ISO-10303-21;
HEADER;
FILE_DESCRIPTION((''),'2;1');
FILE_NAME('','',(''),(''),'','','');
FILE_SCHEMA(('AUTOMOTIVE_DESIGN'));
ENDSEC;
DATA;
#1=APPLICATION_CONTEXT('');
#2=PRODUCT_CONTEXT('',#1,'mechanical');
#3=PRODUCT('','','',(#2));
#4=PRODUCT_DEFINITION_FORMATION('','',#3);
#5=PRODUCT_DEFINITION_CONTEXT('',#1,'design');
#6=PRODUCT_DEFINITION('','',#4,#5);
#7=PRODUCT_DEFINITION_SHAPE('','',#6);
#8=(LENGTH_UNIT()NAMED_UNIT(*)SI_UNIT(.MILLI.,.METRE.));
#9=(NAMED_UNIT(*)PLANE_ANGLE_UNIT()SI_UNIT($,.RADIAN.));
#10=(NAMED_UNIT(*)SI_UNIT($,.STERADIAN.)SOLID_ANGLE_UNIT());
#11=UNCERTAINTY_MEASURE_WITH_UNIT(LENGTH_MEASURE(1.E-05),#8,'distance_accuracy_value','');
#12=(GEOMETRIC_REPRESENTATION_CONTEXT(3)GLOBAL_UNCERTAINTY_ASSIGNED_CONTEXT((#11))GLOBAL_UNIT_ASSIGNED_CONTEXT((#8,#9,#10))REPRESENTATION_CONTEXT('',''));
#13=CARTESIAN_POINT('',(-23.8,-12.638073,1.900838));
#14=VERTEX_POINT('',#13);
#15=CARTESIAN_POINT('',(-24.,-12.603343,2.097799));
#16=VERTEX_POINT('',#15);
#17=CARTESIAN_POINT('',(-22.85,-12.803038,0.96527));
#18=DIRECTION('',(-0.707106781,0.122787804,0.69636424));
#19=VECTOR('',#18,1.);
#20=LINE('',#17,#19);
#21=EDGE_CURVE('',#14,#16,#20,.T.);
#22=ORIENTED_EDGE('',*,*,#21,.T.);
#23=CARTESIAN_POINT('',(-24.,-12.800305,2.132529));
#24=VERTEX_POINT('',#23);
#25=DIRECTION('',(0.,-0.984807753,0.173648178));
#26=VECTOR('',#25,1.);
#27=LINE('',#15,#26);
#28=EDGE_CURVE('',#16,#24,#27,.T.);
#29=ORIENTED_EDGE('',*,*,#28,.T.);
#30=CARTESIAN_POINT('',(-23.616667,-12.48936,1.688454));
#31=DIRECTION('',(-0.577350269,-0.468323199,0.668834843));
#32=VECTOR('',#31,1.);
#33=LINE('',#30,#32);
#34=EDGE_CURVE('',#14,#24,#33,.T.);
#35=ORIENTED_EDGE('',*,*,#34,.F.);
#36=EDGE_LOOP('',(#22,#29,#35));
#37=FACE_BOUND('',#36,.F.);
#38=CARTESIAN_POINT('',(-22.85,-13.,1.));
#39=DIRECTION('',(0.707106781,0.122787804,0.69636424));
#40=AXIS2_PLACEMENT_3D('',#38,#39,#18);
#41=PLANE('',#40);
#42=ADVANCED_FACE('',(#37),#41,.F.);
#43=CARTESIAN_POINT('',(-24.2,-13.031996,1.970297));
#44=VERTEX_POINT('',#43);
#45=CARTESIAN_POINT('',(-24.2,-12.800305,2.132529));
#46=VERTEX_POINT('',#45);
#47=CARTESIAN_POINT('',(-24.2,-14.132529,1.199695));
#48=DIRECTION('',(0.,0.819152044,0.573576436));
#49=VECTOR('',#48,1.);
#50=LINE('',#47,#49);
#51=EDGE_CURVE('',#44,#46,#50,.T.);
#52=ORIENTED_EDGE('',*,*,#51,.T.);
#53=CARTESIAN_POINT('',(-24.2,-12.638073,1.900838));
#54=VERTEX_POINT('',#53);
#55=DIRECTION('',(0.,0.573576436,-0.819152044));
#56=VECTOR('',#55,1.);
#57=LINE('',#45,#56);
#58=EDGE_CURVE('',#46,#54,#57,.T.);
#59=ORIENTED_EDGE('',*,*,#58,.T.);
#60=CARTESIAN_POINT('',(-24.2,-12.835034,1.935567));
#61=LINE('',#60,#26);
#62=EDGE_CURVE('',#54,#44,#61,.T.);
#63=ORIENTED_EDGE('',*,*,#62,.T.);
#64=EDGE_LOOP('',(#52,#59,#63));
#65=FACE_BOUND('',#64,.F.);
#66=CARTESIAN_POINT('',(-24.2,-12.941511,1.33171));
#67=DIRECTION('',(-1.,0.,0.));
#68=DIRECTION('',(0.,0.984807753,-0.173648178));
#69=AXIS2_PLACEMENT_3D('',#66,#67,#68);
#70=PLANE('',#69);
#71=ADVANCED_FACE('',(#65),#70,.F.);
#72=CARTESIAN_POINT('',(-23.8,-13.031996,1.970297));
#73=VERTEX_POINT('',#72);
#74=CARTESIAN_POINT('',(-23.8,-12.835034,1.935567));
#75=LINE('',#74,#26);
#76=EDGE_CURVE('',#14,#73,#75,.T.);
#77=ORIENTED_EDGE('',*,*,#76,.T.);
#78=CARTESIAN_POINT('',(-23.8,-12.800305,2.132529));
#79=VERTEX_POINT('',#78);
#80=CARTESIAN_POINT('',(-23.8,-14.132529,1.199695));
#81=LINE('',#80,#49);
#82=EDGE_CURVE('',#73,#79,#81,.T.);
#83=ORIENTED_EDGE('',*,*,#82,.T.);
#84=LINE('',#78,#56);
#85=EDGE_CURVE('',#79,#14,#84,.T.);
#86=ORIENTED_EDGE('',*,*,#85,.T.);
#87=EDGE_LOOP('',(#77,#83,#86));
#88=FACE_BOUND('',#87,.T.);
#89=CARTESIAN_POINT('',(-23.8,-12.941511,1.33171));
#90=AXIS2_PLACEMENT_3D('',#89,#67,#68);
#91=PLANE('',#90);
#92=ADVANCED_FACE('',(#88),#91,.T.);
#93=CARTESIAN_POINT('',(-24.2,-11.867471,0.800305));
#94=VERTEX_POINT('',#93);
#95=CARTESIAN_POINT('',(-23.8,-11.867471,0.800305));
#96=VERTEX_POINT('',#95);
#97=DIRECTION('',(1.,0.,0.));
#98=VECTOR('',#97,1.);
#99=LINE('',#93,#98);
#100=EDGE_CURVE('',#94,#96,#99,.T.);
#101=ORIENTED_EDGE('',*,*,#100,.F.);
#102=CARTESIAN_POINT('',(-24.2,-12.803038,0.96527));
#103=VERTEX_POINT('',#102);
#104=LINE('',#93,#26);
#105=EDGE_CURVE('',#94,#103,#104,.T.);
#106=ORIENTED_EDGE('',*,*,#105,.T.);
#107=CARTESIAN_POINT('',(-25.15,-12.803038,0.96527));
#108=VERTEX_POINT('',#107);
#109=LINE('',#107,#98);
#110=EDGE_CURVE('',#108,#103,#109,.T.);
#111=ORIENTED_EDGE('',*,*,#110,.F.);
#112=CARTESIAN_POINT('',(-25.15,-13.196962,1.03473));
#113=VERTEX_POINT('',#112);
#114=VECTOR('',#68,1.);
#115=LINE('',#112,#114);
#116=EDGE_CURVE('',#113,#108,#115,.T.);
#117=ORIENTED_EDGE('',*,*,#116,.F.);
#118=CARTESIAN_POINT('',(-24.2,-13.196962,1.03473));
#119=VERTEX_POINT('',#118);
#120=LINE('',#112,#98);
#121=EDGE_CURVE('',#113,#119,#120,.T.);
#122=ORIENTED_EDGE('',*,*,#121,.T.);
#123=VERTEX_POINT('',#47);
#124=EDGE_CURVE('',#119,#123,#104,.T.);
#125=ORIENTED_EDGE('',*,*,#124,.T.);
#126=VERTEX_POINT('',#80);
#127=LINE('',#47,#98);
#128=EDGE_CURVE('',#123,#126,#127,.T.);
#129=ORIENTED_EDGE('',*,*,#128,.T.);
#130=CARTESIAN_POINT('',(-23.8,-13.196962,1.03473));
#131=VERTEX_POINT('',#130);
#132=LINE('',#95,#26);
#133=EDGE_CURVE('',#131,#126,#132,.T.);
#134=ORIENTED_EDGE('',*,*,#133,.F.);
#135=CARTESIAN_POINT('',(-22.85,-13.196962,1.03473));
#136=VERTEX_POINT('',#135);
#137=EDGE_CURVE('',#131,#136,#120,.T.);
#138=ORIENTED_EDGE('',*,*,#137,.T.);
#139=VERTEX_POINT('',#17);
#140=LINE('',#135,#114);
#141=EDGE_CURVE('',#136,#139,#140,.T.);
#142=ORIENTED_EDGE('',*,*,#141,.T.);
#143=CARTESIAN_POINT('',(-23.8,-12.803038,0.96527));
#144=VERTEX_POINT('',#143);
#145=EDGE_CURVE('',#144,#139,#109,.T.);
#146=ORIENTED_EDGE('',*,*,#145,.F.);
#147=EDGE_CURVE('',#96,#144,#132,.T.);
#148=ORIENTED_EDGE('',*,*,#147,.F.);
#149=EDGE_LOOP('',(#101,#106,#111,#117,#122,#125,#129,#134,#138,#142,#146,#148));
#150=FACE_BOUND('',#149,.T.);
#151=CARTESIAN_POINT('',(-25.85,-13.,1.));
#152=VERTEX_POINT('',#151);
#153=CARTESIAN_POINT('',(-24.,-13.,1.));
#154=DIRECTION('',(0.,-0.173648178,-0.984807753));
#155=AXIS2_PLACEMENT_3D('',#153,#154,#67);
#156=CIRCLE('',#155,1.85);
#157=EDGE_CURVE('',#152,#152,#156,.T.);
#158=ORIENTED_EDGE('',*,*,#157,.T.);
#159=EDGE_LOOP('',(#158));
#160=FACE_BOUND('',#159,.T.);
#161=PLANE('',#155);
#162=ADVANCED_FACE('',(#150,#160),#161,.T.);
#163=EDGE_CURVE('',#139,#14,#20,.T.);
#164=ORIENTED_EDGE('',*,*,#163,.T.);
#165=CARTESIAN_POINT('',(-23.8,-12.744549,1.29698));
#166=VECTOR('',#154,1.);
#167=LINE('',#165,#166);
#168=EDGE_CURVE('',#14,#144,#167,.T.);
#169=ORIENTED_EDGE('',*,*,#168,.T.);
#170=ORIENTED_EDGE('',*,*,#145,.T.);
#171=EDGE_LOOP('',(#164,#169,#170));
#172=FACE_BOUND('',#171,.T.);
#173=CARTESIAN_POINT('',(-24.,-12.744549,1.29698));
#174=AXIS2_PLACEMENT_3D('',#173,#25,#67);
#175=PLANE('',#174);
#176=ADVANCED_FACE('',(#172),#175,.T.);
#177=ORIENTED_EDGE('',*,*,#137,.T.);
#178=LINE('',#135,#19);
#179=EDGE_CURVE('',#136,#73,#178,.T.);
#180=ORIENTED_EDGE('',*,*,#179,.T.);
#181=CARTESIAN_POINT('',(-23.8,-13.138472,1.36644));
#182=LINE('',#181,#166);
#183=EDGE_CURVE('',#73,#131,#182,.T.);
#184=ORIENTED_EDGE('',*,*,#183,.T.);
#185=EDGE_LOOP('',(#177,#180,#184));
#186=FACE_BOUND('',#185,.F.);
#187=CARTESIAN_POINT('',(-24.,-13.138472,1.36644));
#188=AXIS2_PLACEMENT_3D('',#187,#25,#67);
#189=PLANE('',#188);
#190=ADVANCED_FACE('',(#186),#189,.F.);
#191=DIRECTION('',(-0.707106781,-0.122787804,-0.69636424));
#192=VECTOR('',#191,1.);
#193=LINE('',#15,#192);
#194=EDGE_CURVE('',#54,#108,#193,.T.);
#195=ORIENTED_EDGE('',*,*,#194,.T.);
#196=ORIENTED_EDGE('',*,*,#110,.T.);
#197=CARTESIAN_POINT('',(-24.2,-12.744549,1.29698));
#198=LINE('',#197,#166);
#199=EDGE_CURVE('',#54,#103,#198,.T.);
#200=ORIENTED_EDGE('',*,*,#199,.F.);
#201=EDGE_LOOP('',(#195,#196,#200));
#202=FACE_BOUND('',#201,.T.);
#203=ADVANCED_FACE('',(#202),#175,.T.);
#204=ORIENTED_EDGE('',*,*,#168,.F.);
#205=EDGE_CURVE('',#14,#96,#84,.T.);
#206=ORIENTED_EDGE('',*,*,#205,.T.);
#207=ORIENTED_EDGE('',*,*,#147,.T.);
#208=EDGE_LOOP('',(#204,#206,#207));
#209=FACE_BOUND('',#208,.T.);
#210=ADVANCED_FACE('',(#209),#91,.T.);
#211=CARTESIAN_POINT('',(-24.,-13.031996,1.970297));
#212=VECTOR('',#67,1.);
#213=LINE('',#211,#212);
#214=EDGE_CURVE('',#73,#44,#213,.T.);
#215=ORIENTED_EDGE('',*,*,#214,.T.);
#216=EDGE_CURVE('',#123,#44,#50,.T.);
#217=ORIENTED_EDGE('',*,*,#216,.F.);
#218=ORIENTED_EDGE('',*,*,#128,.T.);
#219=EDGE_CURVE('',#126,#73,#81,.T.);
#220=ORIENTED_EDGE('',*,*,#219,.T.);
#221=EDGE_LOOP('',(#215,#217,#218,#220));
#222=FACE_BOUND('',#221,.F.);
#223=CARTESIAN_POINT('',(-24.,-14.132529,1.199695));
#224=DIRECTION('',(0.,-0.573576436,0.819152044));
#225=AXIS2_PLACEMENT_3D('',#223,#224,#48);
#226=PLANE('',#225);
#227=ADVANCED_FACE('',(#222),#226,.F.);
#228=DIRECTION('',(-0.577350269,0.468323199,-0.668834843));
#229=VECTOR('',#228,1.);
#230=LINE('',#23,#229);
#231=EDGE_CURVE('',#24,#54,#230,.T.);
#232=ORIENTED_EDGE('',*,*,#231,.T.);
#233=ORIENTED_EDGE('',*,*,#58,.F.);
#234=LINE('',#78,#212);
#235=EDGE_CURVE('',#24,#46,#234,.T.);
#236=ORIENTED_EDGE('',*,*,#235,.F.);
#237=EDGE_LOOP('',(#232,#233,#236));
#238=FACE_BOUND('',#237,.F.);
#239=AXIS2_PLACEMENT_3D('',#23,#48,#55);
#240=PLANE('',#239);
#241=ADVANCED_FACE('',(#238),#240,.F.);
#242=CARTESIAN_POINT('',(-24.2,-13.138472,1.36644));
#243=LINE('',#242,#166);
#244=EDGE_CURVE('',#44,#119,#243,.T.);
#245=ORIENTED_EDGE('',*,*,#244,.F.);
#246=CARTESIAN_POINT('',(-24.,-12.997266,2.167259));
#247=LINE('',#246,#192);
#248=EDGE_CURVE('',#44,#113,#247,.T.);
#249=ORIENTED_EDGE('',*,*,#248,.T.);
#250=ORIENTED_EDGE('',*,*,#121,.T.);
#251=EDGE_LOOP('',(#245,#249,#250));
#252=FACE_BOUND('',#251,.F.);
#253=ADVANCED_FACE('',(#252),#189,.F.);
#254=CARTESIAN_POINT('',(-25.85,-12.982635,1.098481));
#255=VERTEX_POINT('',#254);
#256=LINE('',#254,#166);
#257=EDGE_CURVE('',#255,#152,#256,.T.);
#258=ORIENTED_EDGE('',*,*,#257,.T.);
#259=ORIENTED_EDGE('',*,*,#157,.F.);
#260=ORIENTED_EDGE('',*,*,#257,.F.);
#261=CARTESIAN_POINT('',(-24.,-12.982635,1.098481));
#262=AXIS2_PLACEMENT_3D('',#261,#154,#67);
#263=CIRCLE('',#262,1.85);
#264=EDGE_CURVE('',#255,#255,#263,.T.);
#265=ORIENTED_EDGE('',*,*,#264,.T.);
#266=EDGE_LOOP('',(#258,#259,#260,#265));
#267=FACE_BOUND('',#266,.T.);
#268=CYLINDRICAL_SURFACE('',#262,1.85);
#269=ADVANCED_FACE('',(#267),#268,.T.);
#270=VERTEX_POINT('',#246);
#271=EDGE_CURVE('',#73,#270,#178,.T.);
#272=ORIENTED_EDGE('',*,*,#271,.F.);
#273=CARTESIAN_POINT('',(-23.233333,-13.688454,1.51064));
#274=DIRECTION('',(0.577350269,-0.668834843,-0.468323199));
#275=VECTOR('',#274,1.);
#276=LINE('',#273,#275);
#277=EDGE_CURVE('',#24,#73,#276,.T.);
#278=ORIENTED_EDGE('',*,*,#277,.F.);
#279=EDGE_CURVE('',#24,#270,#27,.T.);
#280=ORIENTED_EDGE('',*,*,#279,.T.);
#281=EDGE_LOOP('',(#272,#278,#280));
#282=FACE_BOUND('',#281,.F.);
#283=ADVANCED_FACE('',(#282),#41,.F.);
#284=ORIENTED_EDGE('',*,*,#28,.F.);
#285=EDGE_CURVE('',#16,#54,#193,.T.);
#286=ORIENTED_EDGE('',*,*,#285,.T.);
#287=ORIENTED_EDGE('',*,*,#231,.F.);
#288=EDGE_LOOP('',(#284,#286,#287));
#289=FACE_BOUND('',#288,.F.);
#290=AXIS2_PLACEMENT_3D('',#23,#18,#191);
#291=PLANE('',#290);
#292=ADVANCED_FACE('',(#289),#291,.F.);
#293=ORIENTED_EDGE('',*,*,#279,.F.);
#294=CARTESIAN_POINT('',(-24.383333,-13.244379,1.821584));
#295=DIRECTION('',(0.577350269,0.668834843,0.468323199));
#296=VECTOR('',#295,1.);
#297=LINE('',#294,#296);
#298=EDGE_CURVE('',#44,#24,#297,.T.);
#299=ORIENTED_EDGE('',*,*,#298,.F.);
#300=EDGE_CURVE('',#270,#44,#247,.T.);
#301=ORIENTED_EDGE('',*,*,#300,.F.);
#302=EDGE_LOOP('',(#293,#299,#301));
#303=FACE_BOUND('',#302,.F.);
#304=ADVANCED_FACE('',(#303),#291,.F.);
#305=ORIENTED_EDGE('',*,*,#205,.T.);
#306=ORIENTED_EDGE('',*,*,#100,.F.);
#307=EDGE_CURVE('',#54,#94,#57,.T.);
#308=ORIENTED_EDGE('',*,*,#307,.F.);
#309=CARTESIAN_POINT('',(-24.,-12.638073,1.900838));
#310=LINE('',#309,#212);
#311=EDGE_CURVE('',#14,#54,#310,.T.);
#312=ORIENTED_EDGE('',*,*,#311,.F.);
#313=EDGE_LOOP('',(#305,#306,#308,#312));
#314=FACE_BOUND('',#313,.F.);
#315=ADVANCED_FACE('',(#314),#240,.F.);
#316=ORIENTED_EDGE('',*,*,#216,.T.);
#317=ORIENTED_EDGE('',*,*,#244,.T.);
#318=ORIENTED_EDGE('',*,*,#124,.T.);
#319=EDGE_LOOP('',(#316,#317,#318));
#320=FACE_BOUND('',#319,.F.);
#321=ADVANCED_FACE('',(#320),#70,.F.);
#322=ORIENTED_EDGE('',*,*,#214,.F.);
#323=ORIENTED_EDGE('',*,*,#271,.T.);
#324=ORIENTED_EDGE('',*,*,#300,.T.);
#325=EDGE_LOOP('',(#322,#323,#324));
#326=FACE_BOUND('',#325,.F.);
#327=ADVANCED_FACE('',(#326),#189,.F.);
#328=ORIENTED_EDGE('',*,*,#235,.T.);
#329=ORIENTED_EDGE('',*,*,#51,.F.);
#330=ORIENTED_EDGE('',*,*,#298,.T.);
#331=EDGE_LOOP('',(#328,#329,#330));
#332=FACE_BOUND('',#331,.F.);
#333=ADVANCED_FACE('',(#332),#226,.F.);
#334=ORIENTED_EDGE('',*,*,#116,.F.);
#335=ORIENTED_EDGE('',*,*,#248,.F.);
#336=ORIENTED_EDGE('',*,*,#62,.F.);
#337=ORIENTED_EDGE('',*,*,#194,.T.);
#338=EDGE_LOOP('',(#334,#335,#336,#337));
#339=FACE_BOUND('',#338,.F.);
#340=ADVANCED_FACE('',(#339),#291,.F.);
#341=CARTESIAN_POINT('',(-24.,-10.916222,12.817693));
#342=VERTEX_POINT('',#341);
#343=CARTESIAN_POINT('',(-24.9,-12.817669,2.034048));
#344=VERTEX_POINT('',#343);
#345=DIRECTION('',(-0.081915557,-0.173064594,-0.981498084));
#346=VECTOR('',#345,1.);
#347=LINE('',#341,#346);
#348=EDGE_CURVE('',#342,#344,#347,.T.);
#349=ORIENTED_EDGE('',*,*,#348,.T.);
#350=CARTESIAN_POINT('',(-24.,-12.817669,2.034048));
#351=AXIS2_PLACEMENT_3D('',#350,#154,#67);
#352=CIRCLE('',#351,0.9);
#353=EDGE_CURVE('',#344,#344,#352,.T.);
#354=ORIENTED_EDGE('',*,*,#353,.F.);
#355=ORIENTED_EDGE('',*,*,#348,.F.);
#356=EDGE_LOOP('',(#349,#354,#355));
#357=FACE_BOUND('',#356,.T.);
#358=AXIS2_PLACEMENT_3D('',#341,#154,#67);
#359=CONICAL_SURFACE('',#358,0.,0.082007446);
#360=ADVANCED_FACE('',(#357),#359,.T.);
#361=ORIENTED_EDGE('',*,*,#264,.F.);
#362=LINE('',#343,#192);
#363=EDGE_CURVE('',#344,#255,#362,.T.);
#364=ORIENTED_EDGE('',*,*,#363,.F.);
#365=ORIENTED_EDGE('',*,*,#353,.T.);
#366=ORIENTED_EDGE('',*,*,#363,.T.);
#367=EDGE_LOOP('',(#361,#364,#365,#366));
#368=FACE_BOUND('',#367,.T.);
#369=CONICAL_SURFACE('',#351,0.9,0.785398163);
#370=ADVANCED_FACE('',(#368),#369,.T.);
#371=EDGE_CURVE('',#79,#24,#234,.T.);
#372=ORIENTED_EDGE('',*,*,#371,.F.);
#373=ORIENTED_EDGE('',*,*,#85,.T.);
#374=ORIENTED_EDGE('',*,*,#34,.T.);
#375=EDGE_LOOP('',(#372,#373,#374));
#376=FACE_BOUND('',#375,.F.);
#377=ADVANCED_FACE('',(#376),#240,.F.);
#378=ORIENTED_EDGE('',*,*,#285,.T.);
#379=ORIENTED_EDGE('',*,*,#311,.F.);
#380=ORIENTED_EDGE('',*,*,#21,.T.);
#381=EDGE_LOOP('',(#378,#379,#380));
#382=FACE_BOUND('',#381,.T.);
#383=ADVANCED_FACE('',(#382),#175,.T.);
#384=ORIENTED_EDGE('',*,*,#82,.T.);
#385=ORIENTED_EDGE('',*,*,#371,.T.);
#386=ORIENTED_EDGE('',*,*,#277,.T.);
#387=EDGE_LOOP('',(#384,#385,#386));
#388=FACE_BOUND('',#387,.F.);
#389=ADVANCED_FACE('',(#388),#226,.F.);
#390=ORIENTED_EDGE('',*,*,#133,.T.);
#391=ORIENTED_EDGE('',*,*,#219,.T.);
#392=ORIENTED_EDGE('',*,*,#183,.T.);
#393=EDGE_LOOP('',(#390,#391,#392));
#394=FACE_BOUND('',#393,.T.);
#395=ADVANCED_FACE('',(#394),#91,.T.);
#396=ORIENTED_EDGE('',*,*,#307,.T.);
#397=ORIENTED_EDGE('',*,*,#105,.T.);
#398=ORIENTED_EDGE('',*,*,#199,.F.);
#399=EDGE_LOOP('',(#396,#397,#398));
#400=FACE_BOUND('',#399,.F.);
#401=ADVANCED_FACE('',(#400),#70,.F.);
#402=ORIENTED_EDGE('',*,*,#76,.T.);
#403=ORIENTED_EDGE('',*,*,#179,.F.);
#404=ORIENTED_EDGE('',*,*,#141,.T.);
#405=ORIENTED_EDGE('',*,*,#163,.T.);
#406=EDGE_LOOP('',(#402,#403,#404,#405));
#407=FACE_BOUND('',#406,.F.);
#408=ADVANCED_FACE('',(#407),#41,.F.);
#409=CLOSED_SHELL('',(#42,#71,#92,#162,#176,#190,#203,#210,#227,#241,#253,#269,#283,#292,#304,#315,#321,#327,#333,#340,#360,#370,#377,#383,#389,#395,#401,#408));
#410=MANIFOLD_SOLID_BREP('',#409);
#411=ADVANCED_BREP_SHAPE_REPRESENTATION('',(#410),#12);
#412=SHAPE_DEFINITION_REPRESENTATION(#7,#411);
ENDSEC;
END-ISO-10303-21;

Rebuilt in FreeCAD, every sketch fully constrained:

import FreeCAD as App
import Part
import Sketcher

V = App.Vector
Q = App.Units.Quantity

doc = App.newDocument("Part")
body = doc.addObject("PartDesign::Body", "Body")

sketch1 = doc.addObject("Sketcher::SketchObject", "Sketch")
body.addObject(sketch1)
sketch1.AttachmentSupport = (doc.XZ_Plane, [""])
sketch1.MapMode = "FlatFace"
sketch1.addGeometry(Part.LineSegment(V(0, 0, 0), V(0, -12, 0)), False)
sketch1.addGeometry(Part.LineSegment(V(0, -12, 0), V(0.9, -1.05, 0)), False)
sketch1.addGeometry(Part.LineSegment(V(0.9, -1.05, 0), V(1.85, -0.1, 0)), False)
sketch1.addGeometry(Part.LineSegment(V(1.85, -0.1, 0), V(1.85, 0, 0)), False)
sketch1.addGeometry(Part.LineSegment(V(1.85, 0, 0), V(0, 0, 0)), False)
sketch1.addConstraint(Sketcher.Constraint("Coincident", 0, 2, 1, 1))
sketch1.addConstraint(Sketcher.Constraint("Coincident", 1, 2, 2, 1))
sketch1.addConstraint(Sketcher.Constraint("Coincident", 2, 2, 3, 1))
sketch1.addConstraint(Sketcher.Constraint("Coincident", 3, 2, 4, 1))
sketch1.addConstraint(Sketcher.Constraint("Coincident", 4, 2, 0, 1))
sketch1.addConstraint(Sketcher.Constraint("Vertical", 0))
sketch1.addConstraint(Sketcher.Constraint("Vertical", 3))
sketch1.addConstraint(Sketcher.Constraint("Horizontal", 4))
sketch1.addConstraint(Sketcher.Constraint("Coincident", 4, 2, -1, 1))
sketch1.addConstraint(Sketcher.Constraint("DistanceY", 0, 2, 0, 1, 12.0))
sketch1.addConstraint(Sketcher.Constraint("Angle", 2, Q("45 deg")))
sketch1.addConstraint(Sketcher.Constraint("DistanceY", 3, 1, 3, 2, 0.1))
sketch1.addConstraint(Sketcher.Constraint("DistanceX", 4, 2, 4, 1, 1.85))
sketch1.addConstraint(Sketcher.Constraint("DistanceX", -1, 1, 1, 2, 0.9))
revolution = doc.addObject("PartDesign::Revolution", "Revolution")
body.addObject(revolution)
revolution.Profile = sketch1
revolution.ReferenceAxis = (sketch1, ["V_Axis"])
revolution.Angle = 360

sketch2 = doc.addObject("Sketcher::SketchObject", "Sketch001")
body.addObject(sketch2)
sketch2.AttachmentSupport = (doc.XZ_Plane, [""])
sketch2.MapMode = "FlatFace"
sketch2.addGeometry(Part.LineSegment(V(-1.1, 0, 0), V(0, -1.1, 0)), False)
sketch2.addGeometry(Part.LineSegment(V(0, -1.1, 0), V(1.1, 0, 0)), False)
sketch2.addGeometry(Part.LineSegment(V(1.1, 0, 0), V(-1.1, 0, 0)), False)
sketch2.addConstraint(Sketcher.Constraint("Coincident", 0, 2, 1, 1))
sketch2.addConstraint(Sketcher.Constraint("Coincident", 1, 2, 2, 1))
sketch2.addConstraint(Sketcher.Constraint("Coincident", 2, 2, 0, 1))
sketch2.addConstraint(Sketcher.Constraint("Horizontal", 2))
sketch2.addConstraint(Sketcher.Constraint("Symmetric", 1, 2, 2, 2, -1, 1))
sketch2.addConstraint(Sketcher.Constraint("PointOnObject", 0, 2, -2))
sketch2.addConstraint(Sketcher.Constraint("Perpendicular", 0, 1))
sketch2.addConstraint(Sketcher.Constraint("DistanceX", 2, 2, 2, 1, 2.3))
pocket1 = doc.addObject("PartDesign::Pocket", "Pocket")
body.addObject(pocket1)
pocket1.Profile = sketch2
pocket1.Length = 0.4
pocket1.Midplane = True
doc.recompute()

polarpattern = doc.addObject("PartDesign::PolarPattern", "PolarPattern")
body.addObject(polarpattern)
polarpattern.Originals = [pocket1]
polarpattern.Axis = (doc.Z_Axis, [""])
polarpattern.Angle = 90
polarpattern.Occurrences = 2
body.Tip = polarpattern
body2 = doc.addObject("PartDesign::Body", "Body001")
doc.recompute()

body.Placement = App.Placement(V(0, 0, 0), App.Rotation(V(1, 0, 0), 190))
boolean = doc.addObject("PartDesign::Boolean", "Boolean")
body2.addObject(boolean)
boolean.Type = "Fuse"
boolean.addObjects([body])
body3 = doc.addObject("PartDesign::Body", "Body002")
doc.recompute()

body2.Placement = App.Placement(V(-24, -13, 1), App.Rotation(V(0, 0, 1), 180))
boolean2 = doc.addObject("PartDesign::Boolean", "Boolean001")
body3.addObject(boolean2)
boolean2.Type = "Fuse"
boolean2.addObjects([body2])

doc.recompute()
